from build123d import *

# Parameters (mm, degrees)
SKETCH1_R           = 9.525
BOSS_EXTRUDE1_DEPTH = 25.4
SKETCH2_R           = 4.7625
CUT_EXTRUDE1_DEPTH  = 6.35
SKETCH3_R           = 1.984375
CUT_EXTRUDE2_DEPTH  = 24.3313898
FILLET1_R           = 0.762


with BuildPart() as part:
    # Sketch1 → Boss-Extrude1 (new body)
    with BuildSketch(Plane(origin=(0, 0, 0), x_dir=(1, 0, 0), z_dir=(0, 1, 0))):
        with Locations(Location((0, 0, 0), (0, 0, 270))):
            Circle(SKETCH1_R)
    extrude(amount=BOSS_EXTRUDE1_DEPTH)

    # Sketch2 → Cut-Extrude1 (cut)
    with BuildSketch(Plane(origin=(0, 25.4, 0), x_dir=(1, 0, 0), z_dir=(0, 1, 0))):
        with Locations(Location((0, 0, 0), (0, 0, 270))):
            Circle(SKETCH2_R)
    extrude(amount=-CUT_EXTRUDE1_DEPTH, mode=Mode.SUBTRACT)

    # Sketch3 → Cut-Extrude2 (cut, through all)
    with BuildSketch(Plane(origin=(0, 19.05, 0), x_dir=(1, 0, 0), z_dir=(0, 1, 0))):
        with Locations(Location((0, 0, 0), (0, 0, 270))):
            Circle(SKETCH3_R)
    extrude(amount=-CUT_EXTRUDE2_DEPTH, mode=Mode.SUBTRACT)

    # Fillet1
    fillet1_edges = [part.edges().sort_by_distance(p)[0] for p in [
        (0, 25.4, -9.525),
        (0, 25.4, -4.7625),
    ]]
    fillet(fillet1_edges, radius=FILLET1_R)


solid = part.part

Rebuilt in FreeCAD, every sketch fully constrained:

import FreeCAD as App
import Part
import Sketcher

V = App.Vector
Q = App.Units.Quantity


def edges_at(feature, points):
    """Names of the edges that pass closest to the given points."""
    edges = feature.Shape.Edges
    near = lambda p: min(range(len(edges)), key=lambda i: edges[i].distToShape(Part.Vertex(*p))[0])
    return sorted({f"Edge{near(p) + 1}" for p in points})

doc = App.newDocument("Part")
body = doc.addObject("PartDesign::Body", "Body")

# Sketch on XZ plane
sketch1 = body.newObject("Sketcher::SketchObject", "Sketch")
sketch1.AttachmentSupport = (doc.getObject("XZ_Plane"), [""])
sketch1.MapMode = "FlatFace"
sketch1.addGeometry(Part.Circle(V(0, 0, 0), V(0, 0, 1), 10), False)
sketch1.addConstraint([
    Sketcher.Constraint("Coincident", 0, 3, -1, 1),
    Sketcher.Constraint("Diameter", 0, Q("0.75 in")),
])
pad1 = body.newObject("PartDesign::Pad", "Pad")
pad1.Profile = sketch1
pad1.Length = Q("1 in")
pad1.Reversed = True

# Sketch on XZ plane
sketch2 = body.newObject("Sketcher::SketchObject", "Sketch001")
sketch2.AttachmentSupport = (doc.getObject("XZ_Plane"), [""])
sketch2.MapMode = "FlatFace"
sketch2.AttachmentOffset = App.Placement(V(0, 0, -1 * 25.4), App.Rotation())
sketch2.addGeometry(Part.Circle(V(0, 0, 0), V(0, 0, 1), 4.8), False)
sketch2.addConstraint([
    Sketcher.Constraint("Coincident", 0, 3, -1, 1),
    Sketcher.Constraint("Diameter", 0, Q("0.375 in")),
])
pocket1 = body.newObject("PartDesign::Pocket", "Pocket")
pocket1.Profile = sketch2
pocket1.Length = Q("0.25 in")
pocket1.Reversed = True

# Sketch on XZ plane
sketch3 = body.newObject("Sketcher::SketchObject", "Sketch002")
sketch3.AttachmentSupport = (doc.getObject("XZ_Plane"), [""])
sketch3.MapMode = "FlatFace"
sketch3.AttachmentOffset = App.Placement(V(0, 0, -0.75 * 25.4), App.Rotation())
sketch3.addGeometry(Part.Circle(V(0, 0, 0), V(0, 0, 1), 2), False)
sketch3.addConstraint([
    Sketcher.Constraint("Coincident", 0, 3, -1, 1),
    Sketcher.Constraint("Diameter", 0, Q("0.15625 in")),
])
pocket2 = body.newObject("PartDesign::Pocket", "Pocket001")
pocket2.Profile = sketch3
pocket2.Type = "ThroughAll"
pocket2.Reversed = True
doc.recompute()

fillet = body.newObject("PartDesign::Fillet", "Fillet")
fillet.Base = (pocket2, edges_at(pocket2, [(0, 25.4, -9.525), (0, 25.4, -4.763)]))
fillet.Radius = Q("0.03 in")

doc.recompute()
